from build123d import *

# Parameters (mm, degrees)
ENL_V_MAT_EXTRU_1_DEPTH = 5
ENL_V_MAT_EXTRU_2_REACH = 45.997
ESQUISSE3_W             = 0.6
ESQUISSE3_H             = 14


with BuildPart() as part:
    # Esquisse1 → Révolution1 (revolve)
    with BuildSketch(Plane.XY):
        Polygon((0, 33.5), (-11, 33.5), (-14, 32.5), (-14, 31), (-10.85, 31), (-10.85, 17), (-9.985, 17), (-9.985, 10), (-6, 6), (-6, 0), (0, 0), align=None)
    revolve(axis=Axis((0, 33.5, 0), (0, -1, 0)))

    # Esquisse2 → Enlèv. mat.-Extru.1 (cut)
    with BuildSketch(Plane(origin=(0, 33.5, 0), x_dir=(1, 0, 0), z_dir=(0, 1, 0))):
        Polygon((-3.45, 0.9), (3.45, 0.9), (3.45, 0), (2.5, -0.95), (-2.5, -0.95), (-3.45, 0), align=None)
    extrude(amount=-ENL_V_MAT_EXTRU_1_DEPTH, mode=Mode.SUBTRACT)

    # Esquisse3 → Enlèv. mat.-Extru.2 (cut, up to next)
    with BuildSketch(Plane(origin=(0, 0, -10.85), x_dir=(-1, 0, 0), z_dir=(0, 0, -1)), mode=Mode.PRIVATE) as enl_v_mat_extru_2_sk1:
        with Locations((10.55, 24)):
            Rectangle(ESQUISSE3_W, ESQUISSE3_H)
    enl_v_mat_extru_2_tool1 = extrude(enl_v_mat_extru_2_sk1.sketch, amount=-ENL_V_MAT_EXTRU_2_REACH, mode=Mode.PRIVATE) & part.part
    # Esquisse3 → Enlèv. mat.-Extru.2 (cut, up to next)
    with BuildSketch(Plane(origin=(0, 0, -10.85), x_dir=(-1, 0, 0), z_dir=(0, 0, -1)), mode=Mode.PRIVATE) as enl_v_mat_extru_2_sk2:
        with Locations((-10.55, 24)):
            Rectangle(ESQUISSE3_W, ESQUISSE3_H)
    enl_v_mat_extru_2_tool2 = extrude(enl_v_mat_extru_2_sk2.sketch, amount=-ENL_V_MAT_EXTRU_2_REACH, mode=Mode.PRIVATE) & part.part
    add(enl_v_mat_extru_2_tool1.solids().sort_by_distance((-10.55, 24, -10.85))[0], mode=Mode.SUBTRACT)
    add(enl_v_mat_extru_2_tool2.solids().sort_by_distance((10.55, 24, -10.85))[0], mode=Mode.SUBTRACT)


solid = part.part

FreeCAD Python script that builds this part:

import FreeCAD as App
import Part
import Sketcher

V = App.Vector

doc = App.newDocument("Part")
body = doc.addObject("PartDesign::Body", "Body")

sketch1 = body.newObject("Sketcher::SketchObject", "Sketch")
sketch1.AttachmentSupport = (doc.getObject("XY_Plane"), [""])
sketch1.MapMode = "FlatFace"
sketch1.addGeometry(Part.LineSegment(V(0, 33.5, 0), V(-11, 33.5, 0)), False)
sketch1.addGeometry(Part.LineSegment(V(-11, 33.5, 0), V(-14, 32.5, 0)), False)
sketch1.addGeometry(Part.LineSegment(V(-14, 32.5, 0), V(-14, 31, 0)), False)
sketch1.addGeometry(Part.LineSegment(V(-14, 31, 0), V(-10.8, 31, 0)), False)
sketch1.addGeometry(Part.LineSegment(V(-10.8, 31, 0), V(-10.8, 17, 0)), False)
sketch1.addGeometry(Part.LineSegment(V(-10.8, 17, 0), V(-10, 17, 0)), False)
sketch1.addGeometry(Part.LineSegment(V(-10, 17, 0), V(-10, 10, 0)), False)
sketch1.addGeometry(Part.LineSegment(V(-10, 10, 0), V(-6, 6, 0)), False)
sketch1.addGeometry(Part.LineSegment(V(-6, 6, 0), V(-6, 0, 0)), False)
sketch1.addGeometry(Part.LineSegment(V(-6, 0, 0), V(0, 0, 0)), False)
sketch1.addGeometry(Part.LineSegment(V(0, 0, 0), V(0, 33.5, 0)), False)
sketch1.addConstraint(Sketcher.Constraint("Coincident", 0, 2, 1, 1))
sketch1.addConstraint(Sketcher.Constraint("Coincident", 1, 2, 2, 1))
sketch1.addConstraint(Sketcher.Constraint("Coincident", 2, 2, 3, 1))
sketch1.addConstraint(Sketcher.Constraint("Coincident", 3, 2, 4, 1))
sketch1.addConstraint(Sketcher.Constraint("Coincident", 4, 2, 5, 1))
sketch1.addConstraint(Sketcher.Constraint("Coincident", 5, 2, 6, 1))
sketch1.addConstraint(Sketcher.Constraint("Coincident", 6, 2, 7, 1))
sketch1.addConstraint(Sketcher.Constraint("Coincident", 7, 2, 8, 1))
sketch1.addConstraint(Sketcher.Constraint("Coincident", 8, 2, 9, 1))
sketch1.addConstraint(Sketcher.Constraint("Coincident", 9, 2, 10, 1))
sketch1.addConstraint(Sketcher.Constraint("Coincident", 10, 2, 0, 1))
sketch1.addConstraint(Sketcher.Constraint("Horizontal", 0))
sketch1.addConstraint(Sketcher.Constraint("Vertical", 2))
sketch1.addConstraint(Sketcher.Constraint("Horizontal", 3))
sketch1.addConstraint(Sketcher.Constraint("Vertical", 4))
sketch1.addConstraint(Sketcher.Constraint("Horizontal", 5))
sketch1.addConstraint(Sketcher.Constraint("Vertical", 6))
sketch1.addConstraint(Sketcher.Constraint("Vertical", 8))
sketch1.addConstraint(Sketcher.Constraint("Horizontal", 9))
sketch1.addConstraint(Sketcher.Constraint("Vertical", 10))
sketch1.addConstraint(Sketcher.Constraint("Coincident", 9, 2, -1, 1))
sketch1.addConstraint(Sketcher.Constraint("Equal", 9, 8))
sketch1.addConstraint(Sketcher.Constraint("DistanceX", 0, 2, 0, 1, 11.0))
sketch1.addConstraint(Sketcher.Constraint("DistanceX", 9, 1, 9, 2, 6.0))
sketch1.addConstraint(Sketcher.Constraint("DistanceY", 4, 2, 4, 1, 14.0))
sketch1.addConstraint(Sketcher.Constraint("DistanceY", 6, 2, 6, 1, 7.0))
sketch1.addConstraint(Sketcher.Constraint("DistanceY", 2, 2, 2, 1, 1.5))
sketch1.addConstraint(Sketcher.Constraint("DistanceY", 10, 1, 10, 2, 33.5))
sketch1.addConstraint(Sketcher.Constraint("DistanceX", 1, 2, -1, 1, 14.0))
sketch1.addConstraint(Sketcher.Constraint("DistanceY", -1, 1, 2, 2, 31.0))
sketch1.addConstraint(Sketcher.Constraint("DistanceX", 3, 1, 3, 2, 3.15))
sketch1.addConstraint(Sketcher.Constraint("DistanceX", 5, 1, 5, 2, 0.865))
revolution = body.newObject("PartDesign::Revolution", "Revolution")
revolution.Profile = sketch1
revolution.ReferenceAxis = (sketch1, ["V_Axis"])
revolution.Angle = 360

sketch2 = body.newObject("Sketcher::SketchObject", "Sketch001")
sketch2.AttachmentSupport = (doc.getObject("XZ_Plane"), [""])
sketch2.MapMode = "FlatFace"
sketch2.AttachmentOffset = App.Placement(V(0, 0, -33.5), App.Rotation())
sketch2.addGeometry(Part.LineSegment(V(3.5, -0.9, 0), V(-3.5, -0.9, 0)), False)
sketch2.addGeometry(Part.LineSegment(V(-3.5, -0.9, 0), V(-3.5, 0, 0)), False)
sketch2.addGeometry(Part.LineSegment(V(-3.5, 0, 0), V(-2.5, 0.9, 0)), False)
sketch2.addGeometry(Part.LineSegment(V(-2.5, 0.9, 0), V(2.5, 0.9, 0)), False)
sketch2.addGeometry(Part.LineSegment(V(2.5, 0.9, 0), V(3.5, 0, 0)), False)
sketch2.addGeometry(Part.LineSegment(V(3.5, 0, 0), V(3.5, -0.9, 0)), False)
sketch2.addConstraint(Sketcher.Constraint("Coincident", 0, 2, 1, 1))
sketch2.addConstraint(Sketcher.Constraint("Coincident", 1, 2, 2, 1))
sketch2.addConstraint(Sketcher.Constraint("Coincident", 2, 2, 3, 1))
sketch2.addConstraint(Sketcher.Constraint("Coincident", 3, 2, 4, 1))
sketch2.addConstraint(Sketcher.Constraint("Coincident", 4, 2, 5, 1))
sketch2.addConstraint(Sketcher.Constraint("Coincident", 5, 2, 0, 1))
sketch2.addConstraint(Sketcher.Constraint("Horizontal", 0))
sketch2.addConstraint(Sketcher.Constraint("Vertical", 1))
sketch2.addConstraint(Sketcher.Constraint("Horizontal", 3))
sketch2.addConstraint(Sketcher.Constraint("Vertical", 5))
sketch2.addConstraint(Sketcher.Constraint("Symmetric", 1, 2, 4, 2, -1, 1))
sketch2.addConstraint(Sketcher.Constraint("PointOnObject", 1, 2, -1))
sketch2.addConstraint(Sketcher.Constraint("Perpendicular", 2, 4))
sketch2.addConstraint(Sketcher.Constraint("Equal", 2, 4))
sketch2.addConstraint(Sketcher.Constraint("DistanceX", 3, 1, 3, 2, 5.0))
sketch2.addConstraint(Sketcher.Constraint("DistanceX", 0, 2, 0, 1, 6.9))
sketch2.addConstraint(Sketcher.Constraint("DistanceY", 1, 1, 1, 2, 0.9))
pocket1 = body.newObject("PartDesign::Pocket", "Pocket")
pocket1.Profile = sketch2
pocket1.Length = 5
pocket1.Reversed = True

sketch3 = body.newObject("Sketcher::SketchObject", "Sketch002")
sketch3.AttachmentSupport = (doc.getObject("XY_Plane"), [""])
sketch3.MapMode = "FlatFace"
sketch3.AttachmentOffset = App.Placement(V(0, 0, -10.85), App.Rotation())
sketch3.addGeometry(Part.LineSegment(V(-10.2, 31, 0), V(-10.2, 17, 0)), False)
sketch3.addGeometry(Part.LineSegment(V(-10.2, 17, 0), V(-10.8, 17, 0)), False)
sketch3.addGeometry(Part.LineSegment(V(-10.8, 17, 0), V(-10.8, 31, 0)), False)
sketch3.addGeometry(Part.LineSegment(V(-10.8, 31, 0), V(-10.2, 31, 0)), False)
sketch3.addConstraint(Sketcher.Constraint("Coincident", 0, 2, 1, 1))
sketch3.addConstraint(Sketcher.Constraint("Coincident", 1, 2, 2, 1))
sketch3.addConstraint(Sketcher.Constraint("Coincident", 2, 2, 3, 1))
sketch3.addConstraint(Sketcher.Constraint("Coincident", 3, 2, 0, 1))
sketch3.addConstraint(Sketcher.Constraint("Vertical", 0))
sketch3.addConstraint(Sketcher.Constraint("Horizontal", 1))
sketch3.addConstraint(Sketcher.Constraint("Vertical", 2))
sketch3.addConstraint(Sketcher.Constraint("Horizontal", 3))
sketch3.addConstraint(Sketcher.Constraint("DistanceY", 0, 2, 0, 1, 14.0))
sketch3.addConstraint(Sketcher.Constraint("DistanceX", 1, 2, 1, 1, 0.6))
sketch3.addConstraint(Sketcher.Constraint("DistanceY", -1, 1, 0, 2, 17.0))
sketch3.addConstraint(Sketcher.Constraint("DistanceX", 0, 2, -1, 1, 10.25))
pocket2 = body.newObject("PartDesign::Pocket", "Pocket001")
pocket2.Profile = sketch3
pocket2.Type = "UpToFirst"
pocket2.Reversed = True

sketch4 = body.newObject("Sketcher::SketchObject", "Sketch003")
sketch4.AttachmentSupport = (doc.getObject("XY_Plane"), [""])
sketch4.MapMode = "FlatFace"
sketch4.AttachmentOffset = App.Placement(V(0, 0, -10.85), App.Rotation())
sketch4.addGeometry(Part.LineSegment(V(10.8, 31, 0), V(10.8, 17, 0)), False)
sketch4.addGeometry(Part.LineSegment(V(10.8, 17, 0), V(10.2, 17, 0)), False)
sketch4.addGeometry(Part.LineSegment(V(10.2, 17, 0), V(10.2, 31, 0)), False)
sketch4.addGeometry(Part.LineSegment(V(10.2, 31, 0), V(10.8, 31, 0)), False)
sketch4.addConstraint(Sketcher.Constraint("Coincident", 0, 2, 1, 1))
sketch4.addConstraint(Sketcher.Constraint("Coincident", 1, 2, 2, 1))
sketch4.addConstraint(Sketcher.Constraint("Coincident", 2, 2, 3, 1))
sketch4.addConstraint(Sketcher.Constraint("Coincident", 3, 2, 0, 1))
sketch4.addConstraint(Sketcher.Constraint("Vertical", 0))
sketch4.addConstraint(Sketcher.Constraint("Horizontal", 1))
sketch4.addConstraint(Sketcher.Constraint("Vertical", 2))
sketch4.addConstraint(Sketcher.Constraint("Horizontal", 3))
sketch4.addConstraint(Sketcher.Constraint("DistanceY", 0, 2, 0, 1, 14.0))
sketch4.addConstraint(Sketcher.Constraint("DistanceX", 1, 2, 1, 1, 0.6))
sketch4.addConstraint(Sketcher.Constraint("DistanceY", -1, 1, 0, 2, 17.0))
sketch4.addConstraint(Sketcher.Constraint("DistanceX", -1, 1, 0, 2, 10.85))
pocket3 = body.newObject("PartDesign::Pocket", "Pocket002")
pocket3.Profile = sketch4
pocket3.Type = "UpToFirst"
pocket3.Reversed = True

doc.recompute()
